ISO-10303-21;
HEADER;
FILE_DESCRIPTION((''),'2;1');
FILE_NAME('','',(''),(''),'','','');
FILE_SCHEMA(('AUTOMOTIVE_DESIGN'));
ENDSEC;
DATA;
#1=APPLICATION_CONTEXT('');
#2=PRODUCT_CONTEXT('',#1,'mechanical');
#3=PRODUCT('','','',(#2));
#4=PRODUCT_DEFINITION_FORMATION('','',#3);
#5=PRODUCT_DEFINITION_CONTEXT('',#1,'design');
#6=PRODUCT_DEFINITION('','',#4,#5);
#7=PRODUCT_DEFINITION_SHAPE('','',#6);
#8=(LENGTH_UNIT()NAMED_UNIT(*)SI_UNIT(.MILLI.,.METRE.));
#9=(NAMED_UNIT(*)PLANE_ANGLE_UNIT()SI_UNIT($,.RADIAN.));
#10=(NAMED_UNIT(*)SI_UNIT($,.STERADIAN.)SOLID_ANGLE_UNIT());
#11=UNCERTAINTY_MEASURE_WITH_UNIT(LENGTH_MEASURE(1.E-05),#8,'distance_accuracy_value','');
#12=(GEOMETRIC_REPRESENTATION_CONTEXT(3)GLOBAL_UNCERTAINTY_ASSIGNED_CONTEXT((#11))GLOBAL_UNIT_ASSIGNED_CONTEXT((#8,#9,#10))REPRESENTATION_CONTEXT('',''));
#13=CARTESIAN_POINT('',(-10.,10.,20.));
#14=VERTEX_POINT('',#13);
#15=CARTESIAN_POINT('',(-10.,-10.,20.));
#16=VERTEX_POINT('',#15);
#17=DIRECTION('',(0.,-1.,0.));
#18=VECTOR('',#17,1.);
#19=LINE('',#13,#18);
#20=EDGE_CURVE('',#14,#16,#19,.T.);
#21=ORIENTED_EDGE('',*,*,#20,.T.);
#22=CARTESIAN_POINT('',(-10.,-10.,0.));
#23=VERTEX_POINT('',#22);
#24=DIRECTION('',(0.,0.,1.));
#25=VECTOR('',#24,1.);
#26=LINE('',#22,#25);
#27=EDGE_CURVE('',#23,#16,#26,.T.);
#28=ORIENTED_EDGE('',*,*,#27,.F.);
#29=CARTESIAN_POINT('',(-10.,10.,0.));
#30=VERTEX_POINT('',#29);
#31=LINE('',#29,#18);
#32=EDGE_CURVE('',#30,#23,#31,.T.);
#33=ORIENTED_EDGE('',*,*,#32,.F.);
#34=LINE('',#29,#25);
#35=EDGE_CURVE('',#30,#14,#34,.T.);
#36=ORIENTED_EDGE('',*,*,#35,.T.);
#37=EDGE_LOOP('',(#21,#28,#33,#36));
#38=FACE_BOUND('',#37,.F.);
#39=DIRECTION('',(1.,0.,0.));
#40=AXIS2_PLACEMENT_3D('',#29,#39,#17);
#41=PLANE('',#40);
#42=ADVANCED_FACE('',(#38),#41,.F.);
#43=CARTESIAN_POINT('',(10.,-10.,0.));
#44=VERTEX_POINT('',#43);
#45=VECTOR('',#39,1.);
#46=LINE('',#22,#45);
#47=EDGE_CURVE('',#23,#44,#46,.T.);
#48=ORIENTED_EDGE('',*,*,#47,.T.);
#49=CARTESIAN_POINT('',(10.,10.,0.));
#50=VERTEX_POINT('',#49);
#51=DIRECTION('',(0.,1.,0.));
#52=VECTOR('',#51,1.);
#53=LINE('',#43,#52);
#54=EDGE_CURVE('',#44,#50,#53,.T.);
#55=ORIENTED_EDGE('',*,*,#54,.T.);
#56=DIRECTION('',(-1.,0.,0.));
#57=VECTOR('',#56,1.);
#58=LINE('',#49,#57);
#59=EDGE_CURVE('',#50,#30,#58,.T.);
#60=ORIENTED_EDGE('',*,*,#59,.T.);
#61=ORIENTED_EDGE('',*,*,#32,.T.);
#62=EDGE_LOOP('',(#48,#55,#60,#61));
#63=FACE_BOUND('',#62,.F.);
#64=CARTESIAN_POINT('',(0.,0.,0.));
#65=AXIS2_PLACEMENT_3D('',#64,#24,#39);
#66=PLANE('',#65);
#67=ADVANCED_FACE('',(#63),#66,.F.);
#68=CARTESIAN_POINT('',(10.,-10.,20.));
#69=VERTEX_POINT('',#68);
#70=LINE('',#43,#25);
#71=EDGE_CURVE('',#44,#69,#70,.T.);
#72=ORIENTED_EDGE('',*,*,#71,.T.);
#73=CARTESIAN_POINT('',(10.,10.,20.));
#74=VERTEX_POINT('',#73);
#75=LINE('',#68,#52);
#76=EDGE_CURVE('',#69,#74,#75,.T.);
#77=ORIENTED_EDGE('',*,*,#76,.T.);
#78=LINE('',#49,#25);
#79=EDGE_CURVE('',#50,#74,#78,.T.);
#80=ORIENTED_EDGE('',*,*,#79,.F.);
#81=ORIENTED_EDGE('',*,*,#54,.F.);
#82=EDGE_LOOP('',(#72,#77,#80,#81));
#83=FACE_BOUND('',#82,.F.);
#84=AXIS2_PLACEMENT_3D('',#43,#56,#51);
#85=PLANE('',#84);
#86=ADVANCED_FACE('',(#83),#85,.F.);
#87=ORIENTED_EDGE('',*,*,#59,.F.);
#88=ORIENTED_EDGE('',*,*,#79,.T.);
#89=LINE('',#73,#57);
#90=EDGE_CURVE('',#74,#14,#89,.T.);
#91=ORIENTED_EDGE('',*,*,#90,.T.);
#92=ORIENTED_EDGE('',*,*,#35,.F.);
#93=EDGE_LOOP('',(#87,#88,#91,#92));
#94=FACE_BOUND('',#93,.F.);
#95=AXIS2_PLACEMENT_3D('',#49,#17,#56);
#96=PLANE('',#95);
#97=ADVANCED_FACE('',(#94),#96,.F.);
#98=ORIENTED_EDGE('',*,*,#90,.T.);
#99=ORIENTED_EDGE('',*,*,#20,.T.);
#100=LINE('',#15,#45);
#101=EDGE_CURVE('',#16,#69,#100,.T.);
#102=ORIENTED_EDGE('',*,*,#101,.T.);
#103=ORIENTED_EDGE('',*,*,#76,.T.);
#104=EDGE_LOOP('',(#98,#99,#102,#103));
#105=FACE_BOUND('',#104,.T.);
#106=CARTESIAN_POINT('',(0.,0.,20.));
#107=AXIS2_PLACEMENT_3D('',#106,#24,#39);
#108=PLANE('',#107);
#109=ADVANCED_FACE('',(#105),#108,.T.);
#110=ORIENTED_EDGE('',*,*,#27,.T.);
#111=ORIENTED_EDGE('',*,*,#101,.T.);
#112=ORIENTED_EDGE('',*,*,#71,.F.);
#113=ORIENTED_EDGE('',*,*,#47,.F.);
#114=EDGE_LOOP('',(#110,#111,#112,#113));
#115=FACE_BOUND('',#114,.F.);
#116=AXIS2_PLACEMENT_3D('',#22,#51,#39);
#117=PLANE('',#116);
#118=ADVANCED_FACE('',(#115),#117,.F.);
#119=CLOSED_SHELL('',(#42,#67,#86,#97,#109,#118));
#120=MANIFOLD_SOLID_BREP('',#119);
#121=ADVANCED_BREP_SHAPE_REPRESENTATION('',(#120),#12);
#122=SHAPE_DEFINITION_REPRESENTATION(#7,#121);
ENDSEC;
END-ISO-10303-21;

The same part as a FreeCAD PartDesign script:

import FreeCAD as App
import Part
import Sketcher

V = App.Vector


def add_polygon(sketch, points):
    """Adds a closed chain of lines whose ends are joined by coincident constraints."""
    first, n = sketch.GeometryCount, len(points)
    for a, b in zip(points, points[1:] + points[:1]):
        sketch.addGeometry(Part.LineSegment(App.Vector(*a, 0), App.Vector(*b, 0)), False)
    for i in range(n):
        sketch.addConstraint(Sketcher.Constraint("Coincident", first + i, 2, first + (i + 1) % n, 1))

doc = App.newDocument("Part")
body = doc.addObject("PartDesign::Body", "Body")

# Sketch on XY plane
sketch1 = body.newObject("Sketcher::SketchObject", "Sketch")
sketch1.AttachmentSupport = (doc.getObject("XY_Plane"), [""])
sketch1.MapMode = "FlatFace"
add_polygon(sketch1, [(10, -10), (10, 10), (-10, 10), (-10, -10)])  # lines 0-3
sketch1.addConstraint(Sketcher.Constraint("Vertical", 0))
sketch1.addConstraint(Sketcher.Constraint("Horizontal", 1))
sketch1.addConstraint(Sketcher.Constraint("Vertical", 2))
sketch1.addConstraint(Sketcher.Constraint("Horizontal", 3))
sketch1.addConstraint(Sketcher.Constraint("Symmetric", 0, 2, 2, 2, -1, 1))
sketch1.addConstraint(Sketcher.Constraint("Equal", 3, 0))
sketch1.addConstraint(Sketcher.Constraint("DistanceX", 1, 2, 1, 1, 20.0))
pad1 = body.newObject("PartDesign::Pad", "Pad")
pad1.Profile = sketch1
pad1.Length = 20

doc.recompute()
